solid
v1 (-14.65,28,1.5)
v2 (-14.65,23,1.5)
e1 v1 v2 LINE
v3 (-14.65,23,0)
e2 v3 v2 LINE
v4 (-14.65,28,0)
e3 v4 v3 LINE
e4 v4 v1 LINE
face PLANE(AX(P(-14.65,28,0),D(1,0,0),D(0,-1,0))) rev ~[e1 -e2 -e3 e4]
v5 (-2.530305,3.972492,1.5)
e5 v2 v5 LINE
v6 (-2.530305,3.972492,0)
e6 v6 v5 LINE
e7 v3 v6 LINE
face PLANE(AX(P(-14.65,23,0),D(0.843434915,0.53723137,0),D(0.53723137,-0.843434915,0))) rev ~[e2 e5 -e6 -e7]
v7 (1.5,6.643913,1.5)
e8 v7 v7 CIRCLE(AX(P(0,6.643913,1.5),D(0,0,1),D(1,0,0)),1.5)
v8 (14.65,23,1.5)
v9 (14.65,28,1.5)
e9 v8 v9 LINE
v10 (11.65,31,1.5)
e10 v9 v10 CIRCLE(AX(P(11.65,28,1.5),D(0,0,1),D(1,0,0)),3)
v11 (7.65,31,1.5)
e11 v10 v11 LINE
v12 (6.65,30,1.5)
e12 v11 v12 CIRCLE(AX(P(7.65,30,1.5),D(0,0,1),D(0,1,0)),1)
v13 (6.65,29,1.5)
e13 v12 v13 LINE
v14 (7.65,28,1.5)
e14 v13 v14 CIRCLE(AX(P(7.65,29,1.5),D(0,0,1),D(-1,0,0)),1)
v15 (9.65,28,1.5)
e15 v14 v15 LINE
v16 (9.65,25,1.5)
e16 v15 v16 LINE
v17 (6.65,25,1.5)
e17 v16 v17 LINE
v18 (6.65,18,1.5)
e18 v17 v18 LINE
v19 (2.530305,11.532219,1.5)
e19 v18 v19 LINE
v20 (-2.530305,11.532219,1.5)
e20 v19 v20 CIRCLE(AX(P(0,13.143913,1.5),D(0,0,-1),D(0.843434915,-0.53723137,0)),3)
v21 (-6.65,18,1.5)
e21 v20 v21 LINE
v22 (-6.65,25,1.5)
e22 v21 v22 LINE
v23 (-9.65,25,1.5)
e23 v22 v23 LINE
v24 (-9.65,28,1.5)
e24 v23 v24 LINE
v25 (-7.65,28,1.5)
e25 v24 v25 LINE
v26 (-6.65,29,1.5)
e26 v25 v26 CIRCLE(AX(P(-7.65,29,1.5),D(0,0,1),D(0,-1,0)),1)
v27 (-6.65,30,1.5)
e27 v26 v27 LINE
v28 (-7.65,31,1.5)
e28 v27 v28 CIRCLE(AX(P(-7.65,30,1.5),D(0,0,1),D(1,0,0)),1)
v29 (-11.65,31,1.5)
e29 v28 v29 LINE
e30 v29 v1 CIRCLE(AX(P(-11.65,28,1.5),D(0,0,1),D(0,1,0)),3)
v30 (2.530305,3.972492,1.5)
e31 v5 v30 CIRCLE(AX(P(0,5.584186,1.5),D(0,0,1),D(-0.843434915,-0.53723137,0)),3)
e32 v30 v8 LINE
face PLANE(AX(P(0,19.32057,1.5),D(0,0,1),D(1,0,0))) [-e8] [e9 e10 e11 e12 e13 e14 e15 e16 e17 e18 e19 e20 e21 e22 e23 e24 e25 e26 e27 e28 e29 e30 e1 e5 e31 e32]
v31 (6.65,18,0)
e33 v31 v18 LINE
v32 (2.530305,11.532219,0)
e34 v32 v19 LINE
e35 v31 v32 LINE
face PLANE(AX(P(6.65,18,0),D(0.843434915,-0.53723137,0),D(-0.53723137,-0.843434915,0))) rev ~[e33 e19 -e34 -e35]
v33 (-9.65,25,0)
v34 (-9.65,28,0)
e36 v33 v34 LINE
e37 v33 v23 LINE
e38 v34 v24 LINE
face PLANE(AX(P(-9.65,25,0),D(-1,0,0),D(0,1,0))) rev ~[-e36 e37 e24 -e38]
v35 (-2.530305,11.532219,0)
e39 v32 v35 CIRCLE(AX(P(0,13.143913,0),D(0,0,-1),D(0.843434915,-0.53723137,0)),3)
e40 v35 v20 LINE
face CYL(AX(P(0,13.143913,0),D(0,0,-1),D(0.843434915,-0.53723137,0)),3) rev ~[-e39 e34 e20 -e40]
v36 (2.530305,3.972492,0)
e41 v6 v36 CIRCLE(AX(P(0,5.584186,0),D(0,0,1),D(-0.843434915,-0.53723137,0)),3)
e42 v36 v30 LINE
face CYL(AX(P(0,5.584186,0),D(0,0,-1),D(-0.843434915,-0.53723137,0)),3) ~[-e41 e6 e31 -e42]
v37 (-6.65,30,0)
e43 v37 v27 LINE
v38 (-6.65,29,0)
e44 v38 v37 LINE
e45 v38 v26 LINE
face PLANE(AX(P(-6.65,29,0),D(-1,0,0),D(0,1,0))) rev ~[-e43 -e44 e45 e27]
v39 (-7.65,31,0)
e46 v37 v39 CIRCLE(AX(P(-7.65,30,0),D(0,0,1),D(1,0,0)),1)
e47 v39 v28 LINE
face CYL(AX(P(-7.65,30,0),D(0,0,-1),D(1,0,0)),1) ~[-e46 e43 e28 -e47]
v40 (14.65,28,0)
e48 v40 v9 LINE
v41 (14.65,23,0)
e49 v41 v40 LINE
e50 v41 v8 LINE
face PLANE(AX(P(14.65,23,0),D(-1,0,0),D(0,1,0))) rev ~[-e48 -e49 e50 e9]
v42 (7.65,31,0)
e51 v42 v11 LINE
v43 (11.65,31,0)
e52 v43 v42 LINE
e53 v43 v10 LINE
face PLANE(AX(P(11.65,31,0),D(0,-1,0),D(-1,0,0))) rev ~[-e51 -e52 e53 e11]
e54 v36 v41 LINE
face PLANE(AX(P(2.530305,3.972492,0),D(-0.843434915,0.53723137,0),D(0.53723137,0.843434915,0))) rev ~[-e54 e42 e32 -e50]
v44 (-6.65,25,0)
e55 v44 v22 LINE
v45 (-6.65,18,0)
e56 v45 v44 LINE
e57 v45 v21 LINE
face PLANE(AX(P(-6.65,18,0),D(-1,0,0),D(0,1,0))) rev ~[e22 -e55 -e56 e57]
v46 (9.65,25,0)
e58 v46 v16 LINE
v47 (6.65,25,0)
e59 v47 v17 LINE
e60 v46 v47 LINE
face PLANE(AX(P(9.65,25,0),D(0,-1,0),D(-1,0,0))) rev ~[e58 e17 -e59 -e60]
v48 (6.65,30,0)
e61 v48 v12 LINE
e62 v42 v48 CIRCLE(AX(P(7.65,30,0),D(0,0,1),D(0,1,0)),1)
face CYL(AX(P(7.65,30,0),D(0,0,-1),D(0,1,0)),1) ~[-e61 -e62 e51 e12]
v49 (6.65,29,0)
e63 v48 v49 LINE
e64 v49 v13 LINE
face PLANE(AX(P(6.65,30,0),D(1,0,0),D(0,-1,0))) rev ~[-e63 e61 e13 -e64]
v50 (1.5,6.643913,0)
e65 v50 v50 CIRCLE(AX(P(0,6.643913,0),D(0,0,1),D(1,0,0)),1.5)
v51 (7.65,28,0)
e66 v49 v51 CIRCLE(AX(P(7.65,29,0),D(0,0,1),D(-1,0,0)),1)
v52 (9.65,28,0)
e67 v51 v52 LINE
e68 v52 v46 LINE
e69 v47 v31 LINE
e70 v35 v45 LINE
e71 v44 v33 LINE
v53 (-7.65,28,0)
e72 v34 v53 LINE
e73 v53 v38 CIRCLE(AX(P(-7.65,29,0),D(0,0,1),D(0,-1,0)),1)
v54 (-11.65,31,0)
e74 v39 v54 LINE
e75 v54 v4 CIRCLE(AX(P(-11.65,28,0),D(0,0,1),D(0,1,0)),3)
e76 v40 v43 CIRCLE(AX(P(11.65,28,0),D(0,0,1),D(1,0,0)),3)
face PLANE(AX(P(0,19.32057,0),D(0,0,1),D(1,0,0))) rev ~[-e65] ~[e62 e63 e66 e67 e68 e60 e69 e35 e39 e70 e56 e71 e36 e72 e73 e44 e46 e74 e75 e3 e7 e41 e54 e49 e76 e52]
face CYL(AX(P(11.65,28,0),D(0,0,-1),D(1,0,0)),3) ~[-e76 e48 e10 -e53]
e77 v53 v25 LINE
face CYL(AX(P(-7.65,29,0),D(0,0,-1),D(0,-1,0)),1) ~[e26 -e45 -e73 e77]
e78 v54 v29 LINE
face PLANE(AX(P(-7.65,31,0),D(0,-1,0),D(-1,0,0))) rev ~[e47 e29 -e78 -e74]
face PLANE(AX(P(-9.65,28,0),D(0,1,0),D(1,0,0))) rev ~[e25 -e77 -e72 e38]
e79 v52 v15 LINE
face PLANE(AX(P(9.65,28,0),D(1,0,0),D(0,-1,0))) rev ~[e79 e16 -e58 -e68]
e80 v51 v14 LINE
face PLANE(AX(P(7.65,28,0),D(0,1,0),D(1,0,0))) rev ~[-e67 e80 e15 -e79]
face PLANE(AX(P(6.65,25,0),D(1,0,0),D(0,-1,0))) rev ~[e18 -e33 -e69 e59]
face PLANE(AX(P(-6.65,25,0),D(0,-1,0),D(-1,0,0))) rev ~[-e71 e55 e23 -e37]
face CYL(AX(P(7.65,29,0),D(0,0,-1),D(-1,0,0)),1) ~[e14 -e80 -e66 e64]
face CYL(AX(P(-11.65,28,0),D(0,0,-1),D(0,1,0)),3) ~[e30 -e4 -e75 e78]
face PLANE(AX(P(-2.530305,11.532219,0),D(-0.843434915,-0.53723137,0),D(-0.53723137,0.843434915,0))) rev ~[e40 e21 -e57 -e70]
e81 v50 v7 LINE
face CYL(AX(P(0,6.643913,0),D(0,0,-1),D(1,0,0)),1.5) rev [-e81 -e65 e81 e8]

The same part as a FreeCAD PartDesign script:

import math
import FreeCAD as App
import Part
import Sketcher
from FreeCAD import Vector
Q = App.Units.Quantity

doc = App.newDocument("Part")
body = doc.addObject("PartDesign::Body", "Body")

# Sketch on XY plane
sketch1 = body.newObject("Sketcher::SketchObject", "Sketch")
sketch1.AttachmentSupport = (doc.getObject("XY_Plane"), [""])
sketch1.MapMode = "FlatFace"
sketch1.addGeometry(Part.LineSegment(Vector(-14.7, 23, 0), Vector(-2.5, 4, 0)), False)
sketch1.addGeometry(Part.ArcOfCircle(Part.Circle(Vector(0, 5.6, 0), Vector(0, 0, 1), 3), math.radians(-148), math.radians(-32)), False)
sketch1.addGeometry(Part.LineSegment(Vector(2.5, 4, 0), Vector(14.7, 23, 0)), False)
sketch1.addGeometry(Part.LineSegment(Vector(14.7, 23, 0), Vector(14.7, 28, 0)), False)
sketch1.addGeometry(Part.ArcOfCircle(Part.Circle(Vector(11.7, 28, 0), Vector(0, 0, 1), 3), math.radians(0), math.radians(90)), False)
sketch1.addGeometry(Part.LineSegment(Vector(11.7, 31, 0), Vector(7.7, 31, 0)), False)
sketch1.addGeometry(Part.ArcOfCircle(Part.Circle(Vector(7.7, 30, 0), Vector(0, 0, 1), 1), math.radians(90), math.radians(180)), False)
sketch1.addGeometry(Part.LineSegment(Vector(6.7, 30, 0), Vector(6.7, 29, 0)), False)
sketch1.addGeometry(Part.ArcOfCircle(Part.Circle(Vector(7.7, 29, 0), Vector(0, 0, 1), 1), math.radians(180), math.radians(270)), False)
sketch1.addGeometry(Part.LineSegment(Vector(7.7, 28, 0), Vector(9.7, 28, 0)), False)
sketch1.addGeometry(Part.LineSegment(Vector(9.7, 28, 0), Vector(9.7, 25, 0)), False)
sketch1.addGeometry(Part.LineSegment(Vector(9.7, 25, 0), Vector(6.7, 25, 0)), False)
sketch1.addGeometry(Part.LineSegment(Vector(6.7, 25, 0), Vector(6.7, 18, 0)), False)
sketch1.addGeometry(Part.LineSegment(Vector(6.7, 18, 0), Vector(2.5, 11.5, 0)), False)
sketch1.addGeometry(Part.ArcOfCircle(Part.Circle(Vector(0, 13.1, 0), Vector(0, 0, 1), 3), math.radians(-148), math.radians(-32)), False)
sketch1.addGeometry(Part.LineSegment(Vector(-2.5, 11.5, 0), Vector(-6.7, 18, 0)), False)
sketch1.addGeometry(Part.LineSegment(Vector(-6.7, 18, 0), Vector(-6.7, 25, 0)), False)
sketch1.addGeometry(Part.LineSegment(Vector(-6.7, 25, 0), Vector(-9.7, 25, 0)), False)
sketch1.addGeometry(Part.LineSegment(Vector(-9.7, 25, 0), Vector(-9.7, 28, 0)), False)
sketch1.addGeometry(Part.LineSegment(Vector(-9.7, 28, 0), Vector(-7.7, 28, 0)), False)
sketch1.addGeometry(Part.ArcOfCircle(Part.Circle(Vector(-7.7, 29, 0), Vector(0, 0, 1), 1), math.radians(-90), math.radians(0)), False)
sketch1.addGeometry(Part.LineSegment(Vector(-6.7, 29, 0), Vector(-6.7, 30, 0)), False)
sketch1.addGeometry(Part.ArcOfCircle(Part.Circle(Vector(-7.7, 30, 0), Vector(0, 0, 1), 1), math.radians(0), math.radians(90)), False)
sketch1.addGeometry(Part.LineSegment(Vector(-7.7, 31, 0), Vector(-11.7, 31, 0)), False)
sketch1.addGeometry(Part.ArcOfCircle(Part.Circle(Vector(-11.7, 28, 0), Vector(0, 0, 1), 3), math.radians(90), math.radians(180)), False)
sketch1.addGeometry(Part.LineSegment(Vector(-14.7, 28, 0), Vector(-14.7, 23, 0)), False)
sketch1.addGeometry(Part.Circle(Vector(0, 6.6, 0), Vector(0, 0, 1), 1.5), False)
sketch1.addConstraint(Sketcher.Constraint("Tangent", 0, 2, 1, 1))
sketch1.addConstraint(Sketcher.Constraint("Tangent", 1, 2, 2, 1))
sketch1.addConstraint(Sketcher.Constraint("Coincident", 2, 2, 3, 1))
sketch1.addConstraint(Sketcher.Constraint("Tangent", 3, 2, 4, 1))
sketch1.addConstraint(Sketcher.Constraint("Tangent", 4, 2, 5, 1))
sketch1.addConstraint(Sketcher.Constraint("Tangent", 5, 2, 6, 1))
sketch1.addConstraint(Sketcher.Constraint("Tangent", 6, 2, 7, 1))
sketch1.addConstraint(Sketcher.Constraint("Tangent", 7, 2, 8, 1))
sketch1.addConstraint(Sketcher.Constraint("Tangent", 8, 2, 9, 1))
sketch1.addConstraint(Sketcher.Constraint("Coincident", 9, 2, 10, 1))
sketch1.addConstraint(Sketcher.Constraint("Coincident", 10, 2, 11, 1))
sketch1.addConstraint(Sketcher.Constraint("Coincident", 11, 2, 12, 1))
sketch1.addConstraint(Sketcher.Constraint("Coincident", 12, 2, 13, 1))
sketch1.addConstraint(Sketcher.Constraint("Tangent", 13, 2, 14, 2))
sketch1.addConstraint(Sketcher.Constraint("Tangent", 14, 1, 15, 1))
sketch1.addConstraint(Sketcher.Constraint("Coincident", 15, 2, 16, 1))
sketch1.addConstraint(Sketcher.Constraint("Coincident", 16, 2, 17, 1))
sketch1.addConstraint(Sketcher.Constraint("Coincident", 17, 2, 18, 1))
sketch1.addConstraint(Sketcher.Constraint("Coincident", 18, 2, 19, 1))
sketch1.addConstraint(Sketcher.Constraint("Tangent", 19, 2, 20, 1))
sketch1.addConstraint(Sketcher.Constraint("Tangent", 20, 2, 21, 1))
sketch1.addConstraint(Sketcher.Constraint("Tangent", 21, 2, 22, 1))
sketch1.addConstraint(Sketcher.Constraint("Tangent", 22, 2, 23, 1))
sketch1.addConstraint(Sketcher.Constraint("Tangent", 23, 2, 24, 1))
sketch1.addConstraint(Sketcher.Constraint("Tangent", 24, 2, 25, 1))
sketch1.addConstraint(Sketcher.Constraint("Coincident", 25, 2, 0, 1))
sketch1.addConstraint(Sketcher.Constraint("Vertical", 3))
sketch1.addConstraint(Sketcher.Constraint("Horizontal", 5))
sketch1.addConstraint(Sketcher.Constraint("Vertical", 7))
sketch1.addConstraint(Sketcher.Constraint("Horizontal", 9))
sketch1.addConstraint(Sketcher.Constraint("Vertical", 10))
sketch1.addConstraint(Sketcher.Constraint("Horizontal", 11))
sketch1.addConstraint(Sketcher.Constraint("Vertical", 12))
sketch1.addConstraint(Sketcher.Constraint("Vertical", 16))
sketch1.addConstraint(Sketcher.Constraint("Horizontal", 17))
sketch1.addConstraint(Sketcher.Constraint("Vertical", 18))
sketch1.addConstraint(Sketcher.Constraint("Horizontal", 19))
sketch1.addConstraint(Sketcher.Constraint("Vertical", 21))
sketch1.addConstraint(Sketcher.Constraint("Horizontal", 23))
sketch1.addConstraint(Sketcher.Constraint("Vertical", 25))
sketch1.addConstraint(Sketcher.Constraint("Equal", 1, 4))
sketch1.addConstraint(Sketcher.Constraint("Equal", 6, 8))
sketch1.addConstraint(Sketcher.Constraint("Equal", 4, 14))
sketch1.addConstraint(Sketcher.Constraint("Equal", 8, 20))
sketch1.addConstraint(Sketcher.Constraint("Equal", 20, 22))
sketch1.addConstraint(Sketcher.Constraint("Equal", 14, 24))
sketch1.addConstraint(Sketcher.Constraint("Symmetric", 8, 3, 20, 3, -2))
sketch1.addConstraint(Sketcher.Constraint("Symmetric", 4, 3, 24, 3, -2))
sketch1.addConstraint(Sketcher.Constraint("Symmetric", 0, 2, 1, 2, -2))
sketch1.addConstraint(Sketcher.Constraint("Symmetric", 13, 2, 14, 1, -2))
sketch1.addConstraint(Sketcher.Constraint("Symmetric", 11, 2, 16, 2, -2))
sketch1.addConstraint(Sketcher.Constraint("PointOnObject", 26, 3, -2))
sketch1.addConstraint(Sketcher.Constraint("Parallel", 2, 13))
sketch1.addConstraint(Sketcher.Constraint("Horizontal", 3, 2, 8, 2))
sketch1.addConstraint(Sketcher.Constraint("Vertical", 7, 2, 11, 2))
sketch1.addConstraint(Sketcher.Constraint("Equal", 11, 17))
sketch1.addConstraint(Sketcher.Constraint("Equal", 17, 10))
sketch1.addConstraint(Sketcher.Constraint("Diameter", 26, Q("3 mm")))
sketch1.addConstraint(Sketcher.Constraint("Radius", 1, Q("3 mm")))
sketch1.addConstraint(Sketcher.Constraint("Radius", 6, Q("1 mm")))
sketch1.addConstraint(Sketcher.Constraint("DistanceX", 5, 2, 5, 1, Q("4 mm")))
sketch1.addConstraint(Sketcher.Constraint("DistanceX", 9, 1, 9, 2, Q("2 mm")))
sketch1.addConstraint(Sketcher.Constraint("DistanceY", 3, 1, 3, 2, Q("5 mm")))
sketch1.addConstraint(Sketcher.Constraint("DistanceY", 12, 2, 12, 1, Q("7 mm")))
sketch1.addConstraint(Sketcher.Constraint("DistanceY", -1, 1, 4, 3, Q("28 mm")))
sketch1.addConstraint(Sketcher.Constraint("DistanceX", 20, 3, 8, 3, Q("15.3 mm")))
sketch1.addConstraint(Sketcher.Constraint("DistanceY", 26, 3, 14, 3, Q("6.5 mm")))
sketch1.addConstraint(Sketcher.Constraint("Distance", 13, Q("7.668382 mm")))
pad1 = body.newObject("PartDesign::Pad", "Pad")
pad1.Profile = sketch1
pad1.Length = 1.5

doc.recompute()
